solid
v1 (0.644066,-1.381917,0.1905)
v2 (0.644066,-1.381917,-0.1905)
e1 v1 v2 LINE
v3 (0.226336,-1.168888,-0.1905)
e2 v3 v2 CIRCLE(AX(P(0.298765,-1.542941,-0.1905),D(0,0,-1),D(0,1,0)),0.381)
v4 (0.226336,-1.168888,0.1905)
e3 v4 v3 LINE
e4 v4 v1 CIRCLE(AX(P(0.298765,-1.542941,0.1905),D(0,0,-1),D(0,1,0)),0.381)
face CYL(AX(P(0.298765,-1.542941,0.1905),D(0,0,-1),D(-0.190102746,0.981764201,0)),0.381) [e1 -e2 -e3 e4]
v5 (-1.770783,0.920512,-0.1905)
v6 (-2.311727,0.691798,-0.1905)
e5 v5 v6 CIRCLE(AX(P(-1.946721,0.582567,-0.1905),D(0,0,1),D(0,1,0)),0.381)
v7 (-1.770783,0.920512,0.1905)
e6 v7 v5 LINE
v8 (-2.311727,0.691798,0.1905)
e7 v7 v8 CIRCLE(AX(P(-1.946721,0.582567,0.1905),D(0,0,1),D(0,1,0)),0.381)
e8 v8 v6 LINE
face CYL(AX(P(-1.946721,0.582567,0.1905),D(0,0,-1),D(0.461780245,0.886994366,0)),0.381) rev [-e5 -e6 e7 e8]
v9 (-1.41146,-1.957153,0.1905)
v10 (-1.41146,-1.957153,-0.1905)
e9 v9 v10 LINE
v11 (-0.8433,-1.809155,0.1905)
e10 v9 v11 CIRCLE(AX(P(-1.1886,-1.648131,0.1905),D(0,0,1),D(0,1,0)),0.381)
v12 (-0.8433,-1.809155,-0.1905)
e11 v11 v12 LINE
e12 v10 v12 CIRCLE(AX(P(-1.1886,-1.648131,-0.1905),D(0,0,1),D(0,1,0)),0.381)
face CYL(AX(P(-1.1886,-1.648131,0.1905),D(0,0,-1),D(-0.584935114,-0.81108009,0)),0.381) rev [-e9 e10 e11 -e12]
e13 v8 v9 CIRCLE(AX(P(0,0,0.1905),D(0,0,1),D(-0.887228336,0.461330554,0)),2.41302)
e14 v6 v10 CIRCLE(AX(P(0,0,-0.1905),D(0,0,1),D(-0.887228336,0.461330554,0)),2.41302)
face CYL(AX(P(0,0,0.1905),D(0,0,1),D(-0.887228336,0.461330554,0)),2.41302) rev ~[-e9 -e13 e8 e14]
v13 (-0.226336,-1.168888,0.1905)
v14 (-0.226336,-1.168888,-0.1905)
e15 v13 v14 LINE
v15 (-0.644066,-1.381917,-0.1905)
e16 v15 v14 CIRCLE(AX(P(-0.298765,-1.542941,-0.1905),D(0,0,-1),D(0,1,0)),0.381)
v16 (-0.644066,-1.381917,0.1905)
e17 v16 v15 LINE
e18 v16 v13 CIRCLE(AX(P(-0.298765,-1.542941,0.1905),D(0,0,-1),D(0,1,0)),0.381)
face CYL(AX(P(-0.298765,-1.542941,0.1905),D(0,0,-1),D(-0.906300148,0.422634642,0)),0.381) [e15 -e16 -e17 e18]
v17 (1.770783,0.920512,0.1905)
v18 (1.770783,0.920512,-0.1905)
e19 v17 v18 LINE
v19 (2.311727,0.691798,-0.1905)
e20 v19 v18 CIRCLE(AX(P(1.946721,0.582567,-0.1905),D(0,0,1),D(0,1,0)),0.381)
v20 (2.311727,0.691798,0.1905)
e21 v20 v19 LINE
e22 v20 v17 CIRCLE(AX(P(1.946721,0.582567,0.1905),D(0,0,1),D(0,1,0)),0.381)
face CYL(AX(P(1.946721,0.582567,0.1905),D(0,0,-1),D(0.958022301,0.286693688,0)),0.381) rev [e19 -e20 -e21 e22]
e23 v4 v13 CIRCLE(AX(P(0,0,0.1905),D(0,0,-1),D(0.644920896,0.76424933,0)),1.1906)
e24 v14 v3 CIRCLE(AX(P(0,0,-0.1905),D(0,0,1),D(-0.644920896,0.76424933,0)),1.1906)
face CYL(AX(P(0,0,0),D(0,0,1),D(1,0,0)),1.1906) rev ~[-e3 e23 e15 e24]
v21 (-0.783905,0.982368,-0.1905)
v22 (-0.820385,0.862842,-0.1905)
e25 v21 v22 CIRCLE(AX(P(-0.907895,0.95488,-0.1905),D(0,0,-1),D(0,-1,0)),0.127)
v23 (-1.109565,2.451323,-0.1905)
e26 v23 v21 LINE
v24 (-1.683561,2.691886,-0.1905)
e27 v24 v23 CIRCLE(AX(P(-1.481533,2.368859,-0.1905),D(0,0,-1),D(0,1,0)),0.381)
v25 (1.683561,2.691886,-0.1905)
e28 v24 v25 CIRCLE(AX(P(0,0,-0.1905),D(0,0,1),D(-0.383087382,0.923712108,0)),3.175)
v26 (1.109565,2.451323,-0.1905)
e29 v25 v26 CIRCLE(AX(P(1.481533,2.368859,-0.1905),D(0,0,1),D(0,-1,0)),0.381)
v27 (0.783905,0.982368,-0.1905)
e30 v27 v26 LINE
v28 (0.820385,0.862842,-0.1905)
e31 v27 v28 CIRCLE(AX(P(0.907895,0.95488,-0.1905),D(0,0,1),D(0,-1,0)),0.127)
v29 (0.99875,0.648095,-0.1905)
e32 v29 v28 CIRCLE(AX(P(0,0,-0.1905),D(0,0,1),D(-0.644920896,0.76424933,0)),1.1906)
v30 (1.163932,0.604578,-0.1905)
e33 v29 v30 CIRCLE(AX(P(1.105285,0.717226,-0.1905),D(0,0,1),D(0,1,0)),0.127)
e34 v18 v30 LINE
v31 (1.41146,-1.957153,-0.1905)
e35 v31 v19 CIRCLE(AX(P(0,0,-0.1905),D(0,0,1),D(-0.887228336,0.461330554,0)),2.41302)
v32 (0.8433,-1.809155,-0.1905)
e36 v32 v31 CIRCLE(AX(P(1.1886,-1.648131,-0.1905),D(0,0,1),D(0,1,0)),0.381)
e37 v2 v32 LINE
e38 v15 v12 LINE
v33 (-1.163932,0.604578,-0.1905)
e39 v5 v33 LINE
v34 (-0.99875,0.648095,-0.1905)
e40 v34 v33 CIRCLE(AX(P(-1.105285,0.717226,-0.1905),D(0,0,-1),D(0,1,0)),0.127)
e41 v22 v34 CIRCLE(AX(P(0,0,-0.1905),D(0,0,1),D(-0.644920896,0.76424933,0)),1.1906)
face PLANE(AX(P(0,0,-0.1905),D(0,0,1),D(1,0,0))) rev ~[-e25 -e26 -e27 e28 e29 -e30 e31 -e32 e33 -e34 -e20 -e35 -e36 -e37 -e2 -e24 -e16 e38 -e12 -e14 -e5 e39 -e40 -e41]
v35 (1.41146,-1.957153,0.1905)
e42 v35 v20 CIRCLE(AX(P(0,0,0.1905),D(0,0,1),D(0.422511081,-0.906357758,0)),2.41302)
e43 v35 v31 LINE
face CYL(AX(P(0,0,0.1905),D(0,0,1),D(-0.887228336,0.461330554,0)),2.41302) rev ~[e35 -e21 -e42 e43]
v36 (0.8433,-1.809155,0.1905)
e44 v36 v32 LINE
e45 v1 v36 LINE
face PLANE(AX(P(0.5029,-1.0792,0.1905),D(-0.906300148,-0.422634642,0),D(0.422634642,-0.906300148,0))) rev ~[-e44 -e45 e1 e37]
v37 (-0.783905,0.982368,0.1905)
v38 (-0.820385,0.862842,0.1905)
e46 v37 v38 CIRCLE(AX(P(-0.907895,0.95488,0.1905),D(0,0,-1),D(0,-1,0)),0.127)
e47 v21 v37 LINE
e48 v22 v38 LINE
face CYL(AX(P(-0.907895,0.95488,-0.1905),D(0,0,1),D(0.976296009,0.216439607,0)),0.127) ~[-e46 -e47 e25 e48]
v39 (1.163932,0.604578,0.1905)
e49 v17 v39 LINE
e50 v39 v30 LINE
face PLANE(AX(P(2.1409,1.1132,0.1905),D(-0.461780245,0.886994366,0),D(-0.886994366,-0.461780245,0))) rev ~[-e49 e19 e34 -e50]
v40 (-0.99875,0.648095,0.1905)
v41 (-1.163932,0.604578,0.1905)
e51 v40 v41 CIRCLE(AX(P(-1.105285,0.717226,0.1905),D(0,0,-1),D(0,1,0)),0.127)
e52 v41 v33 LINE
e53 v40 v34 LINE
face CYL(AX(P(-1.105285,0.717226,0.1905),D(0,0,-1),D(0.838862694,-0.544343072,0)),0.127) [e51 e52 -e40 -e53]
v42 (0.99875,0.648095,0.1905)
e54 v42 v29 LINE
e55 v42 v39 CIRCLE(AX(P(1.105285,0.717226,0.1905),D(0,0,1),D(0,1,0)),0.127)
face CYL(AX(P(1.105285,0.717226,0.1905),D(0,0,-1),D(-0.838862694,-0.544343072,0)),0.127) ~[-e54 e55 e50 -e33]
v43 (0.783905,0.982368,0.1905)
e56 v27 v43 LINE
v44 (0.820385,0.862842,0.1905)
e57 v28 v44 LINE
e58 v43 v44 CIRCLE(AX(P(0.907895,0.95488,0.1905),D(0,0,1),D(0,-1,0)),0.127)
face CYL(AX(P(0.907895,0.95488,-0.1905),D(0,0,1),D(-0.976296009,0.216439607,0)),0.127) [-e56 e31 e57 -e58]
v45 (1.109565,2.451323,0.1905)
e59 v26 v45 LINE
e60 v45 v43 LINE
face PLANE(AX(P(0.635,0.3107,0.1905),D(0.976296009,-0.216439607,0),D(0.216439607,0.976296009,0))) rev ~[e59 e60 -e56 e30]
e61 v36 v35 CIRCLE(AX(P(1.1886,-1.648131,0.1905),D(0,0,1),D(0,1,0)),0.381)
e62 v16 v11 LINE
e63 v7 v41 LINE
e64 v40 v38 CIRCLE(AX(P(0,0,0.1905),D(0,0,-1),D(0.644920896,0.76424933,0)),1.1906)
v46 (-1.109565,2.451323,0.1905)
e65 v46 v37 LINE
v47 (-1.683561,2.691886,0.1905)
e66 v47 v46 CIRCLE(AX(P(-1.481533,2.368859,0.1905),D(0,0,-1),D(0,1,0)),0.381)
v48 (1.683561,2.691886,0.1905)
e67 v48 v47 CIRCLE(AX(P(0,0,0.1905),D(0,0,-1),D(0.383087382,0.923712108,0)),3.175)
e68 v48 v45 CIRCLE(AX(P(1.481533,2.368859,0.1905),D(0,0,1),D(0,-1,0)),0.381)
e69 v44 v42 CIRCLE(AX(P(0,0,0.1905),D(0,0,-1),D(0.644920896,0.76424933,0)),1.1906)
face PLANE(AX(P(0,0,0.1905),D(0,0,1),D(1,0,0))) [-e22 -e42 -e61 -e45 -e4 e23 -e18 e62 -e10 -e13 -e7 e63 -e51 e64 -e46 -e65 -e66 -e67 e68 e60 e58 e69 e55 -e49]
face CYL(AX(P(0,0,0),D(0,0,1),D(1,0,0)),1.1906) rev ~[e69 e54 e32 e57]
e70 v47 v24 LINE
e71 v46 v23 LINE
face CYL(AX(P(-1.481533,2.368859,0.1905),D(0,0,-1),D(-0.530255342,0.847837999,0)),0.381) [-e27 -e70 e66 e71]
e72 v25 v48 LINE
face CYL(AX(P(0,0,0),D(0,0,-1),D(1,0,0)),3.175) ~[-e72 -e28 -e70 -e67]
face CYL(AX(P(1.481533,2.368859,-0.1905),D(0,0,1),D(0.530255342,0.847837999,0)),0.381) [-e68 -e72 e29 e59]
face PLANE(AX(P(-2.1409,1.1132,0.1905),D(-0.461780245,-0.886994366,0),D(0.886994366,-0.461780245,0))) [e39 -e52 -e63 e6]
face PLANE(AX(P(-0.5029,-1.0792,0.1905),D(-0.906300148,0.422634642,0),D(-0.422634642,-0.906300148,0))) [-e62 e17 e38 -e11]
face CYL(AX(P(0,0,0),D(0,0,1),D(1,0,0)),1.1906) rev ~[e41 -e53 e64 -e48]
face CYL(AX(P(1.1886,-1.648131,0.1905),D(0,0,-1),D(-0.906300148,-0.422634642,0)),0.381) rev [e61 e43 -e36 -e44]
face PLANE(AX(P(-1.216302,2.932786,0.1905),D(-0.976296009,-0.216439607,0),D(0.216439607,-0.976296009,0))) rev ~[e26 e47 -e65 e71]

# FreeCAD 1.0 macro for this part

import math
import FreeCAD as App
import Part
import Sketcher
from FreeCAD import Vector
Q = App.Units.Quantity


def edges_at(feature, points):
    """Names of the edges that pass closest to the given points."""
    edges = feature.Shape.Edges
    near = lambda p: min(range(len(edges)), key=lambda i: edges[i].distToShape(Part.Vertex(*p))[0])
    return sorted({f"Edge{near(p) + 1}" for p in points})


def add_polygon(sketch, points):
    """Adds a closed chain of lines whose ends are joined by coincident constraints."""
    first, n = sketch.GeometryCount, len(points)
    for a, b in zip(points, points[1:] + points[:1]):
        sketch.addGeometry(Part.LineSegment(App.Vector(*a, 0), App.Vector(*b, 0)), False)
    for i in range(n):
        sketch.addConstraint(Sketcher.Constraint("Coincident", first + i, 2, first + (i + 1) % n, 1))

doc = App.newDocument("Part")
body = doc.addObject("PartDesign::Body", "Body")

# Sketch on XY plane
sketch1 = body.newObject("Sketcher::SketchObject", "Sketch")
sketch1.AttachmentSupport = (doc.getObject("XY_Plane"), [""])
sketch1.MapMode = "FlatFace"
sketch1.addGeometry(Part.Circle(Vector(0, 0, 0), Vector(0, 0, 1), 3.2), False)
sketch1.addGeometry(Part.Circle(Vector(0, 0, 0), Vector(0, 0, 1), 1.2), False)
sketch1.addConstraint(Sketcher.Constraint("Coincident", 0, 3, -1, 1))
sketch1.addConstraint(Sketcher.Constraint("Coincident", 1, 3, -1, 1))
sketch1.addConstraint(Sketcher.Constraint("Diameter", 0, Q("0.25 in")))
sketch1.addConstraint(Sketcher.Constraint("Diameter", 1, Q("0.093748 in")))
pad1 = body.newObject("PartDesign::Pad", "Pad")
pad1.Profile = sketch1
pad1.Length = Q("0.015 in")
pad1.Midplane = True

# Sketch on XY plane
sketch2 = body.newObject("Sketcher::SketchObject", "Sketch001")
sketch2.AttachmentSupport = (doc.getObject("XY_Plane"), [""])
sketch2.MapMode = "FlatFace"
sketch2.AttachmentOffset = App.Placement(Vector(0, 0, 0.0075 * 25.4), App.Rotation())
add_polygon(sketch2, [(0.6, 0.3), (1.3, 3.2), (-1.3, 3.2), (-0.6, 0.3)])  # lines 0-3
sketch2.addConstraint(Sketcher.Constraint("Horizontal", 1))
sketch2.addConstraint(Sketcher.Constraint("Horizontal", 3))
sketch2.addConstraint(Sketcher.Constraint("Equal", 0, 2))
sketch2.addConstraint(Sketcher.Constraint("DistanceX", 1, 2, 1, 1, Q("0.1 in")))
sketch2.addConstraint(Sketcher.Constraint("DistanceX", 3, 1, 3, 2, Q("0.05 in")))
sketch2.addConstraint(Sketcher.Constraint("DistanceX", -1, 1, 0, 2, Q("0.05 in")))
sketch2.addConstraint(Sketcher.Constraint("Angle", 0, Q("77.5 deg")))
sketch2.addConstraint(Sketcher.Constraint("DistanceY", -1, 1, 0, 2, Q("0.125 in")))
pocket1 = body.newObject("PartDesign::Pocket", "Pocket")
pocket1.Profile = sketch2
pocket1.Type = "ThroughAll"

# Sketch on XY plane
sketch3 = body.newObject("Sketcher::SketchObject", "Sketch002")
sketch3.AttachmentSupport = (doc.getObject("XY_Plane"), [""])
sketch3.MapMode = "FlatFace"
sketch3.AttachmentOffset = App.Placement(Vector(0, 0, 0.0075 * 25.4), App.Rotation())
sketch3.addGeometry(Part.ArcOfCircle(Part.Circle(Vector(0, 0, 0), Vector(0, 0, 1), 1.2), math.radians(153), math.radians(245)), False)
sketch3.addGeometry(Part.LineSegment(Vector(-1.1, 0.5, 0), Vector(-2.1, 1.1, 0)), False)
sketch3.addGeometry(Part.ArcOfCircle(Part.Circle(Vector(0, 0, 0), Vector(0, 0, 1), 2.4), math.radians(153), math.radians(245)), False)
sketch3.addGeometry(Part.LineSegment(Vector(-1, -2.2, 0), Vector(-0.5, -1.1, 0)), False)
sketch3.addGeometry(Part.ArcOfCircle(Part.Circle(Vector(0, 0, 0), Vector(0, 0, 1), 1.2), math.radians(-65), math.radians(27)), False)
sketch3.addGeometry(Part.LineSegment(Vector(0.5, -1.1, 0), Vector(1, -2.2, 0)), False)
sketch3.addGeometry(Part.ArcOfCircle(Part.Circle(Vector(0, 0, 0), Vector(0, 0, 1), 2.4), math.radians(-65), math.radians(27)), False)
sketch3.addGeometry(Part.LineSegment(Vector(2.1, 1.1, 0), Vector(1.1, 0.5, 0)), False)
sketch3.addConstraint(Sketcher.Constraint("Coincident", 0, 1, 1, 1))
sketch3.addConstraint(Sketcher.Constraint("Coincident", 1, 2, 2, 1))
sketch3.addConstraint(Sketcher.Constraint("Coincident", 2, 2, 3, 1))
sketch3.addConstraint(Sketcher.Constraint("Coincident", 3, 2, 0, 2))
sketch3.addConstraint(Sketcher.Constraint("Coincident", 4, 1, 5, 1))
sketch3.addConstraint(Sketcher.Constraint("Coincident", 5, 2, 6, 1))
sketch3.addConstraint(Sketcher.Constraint("Coincident", 6, 2, 7, 1))
sketch3.addConstraint(Sketcher.Constraint("Coincident", 7, 2, 4, 2))
sketch3.addConstraint(Sketcher.Constraint("Coincident", 0, 3, -1, 1))
sketch3.addConstraint(Sketcher.Constraint("Coincident", 2, 3, -1, 1))
sketch3.addConstraint(Sketcher.Constraint("Coincident", 4, 3, -1, 1))
sketch3.addConstraint(Sketcher.Constraint("Coincident", 6, 3, -1, 1))
sketch3.addConstraint(Sketcher.Constraint("Equal", 0, 4))
sketch3.addConstraint(Sketcher.Constraint("Equal", 2, 6))
sketch3.addConstraint(Sketcher.Constraint("Horizontal", 3, 2, 4, 1))
sketch3.addConstraint(Sketcher.Constraint("Horizontal", 2, 2, 5, 2))
sketch3.addConstraint(Sketcher.Constraint("Horizontal", 1, 2, 6, 2))
sketch3.addConstraint(Sketcher.Constraint("Horizontal", 0, 1, 7, 2))
sketch3.addConstraint(Sketcher.Constraint("Angle", 3, Q("64.999 deg")))
sketch3.addConstraint(Sketcher.Constraint("Radius", 0, Q("0.046874 in")))
sketch3.addConstraint(Sketcher.Constraint("Radius", 2, Q("0.095 in")))
sketch3.addConstraint(Sketcher.Constraint("DistanceX", 3, 2, 4, 1, Q("0.0396 in")))
sketch3.addConstraint(Sketcher.Constraint("DistanceX", 0, 1, -1, 1, Q("0.0416 in")))
sketch3.addConstraint(Sketcher.Constraint("DistanceX", 1, 2, 0, 1, Q("0.0427 in")))
pocket2 = body.newObject("PartDesign::Pocket", "Pocket001")
pocket2.Profile = sketch3
pocket2.Type = "ThroughAll"
doc.recompute()

fillet = body.newObject("PartDesign::Fillet", "Fillet")
fillet.Base = (pocket2, edges_at(pocket2, [
    (-1.216, 2.933, 0),
    (1.216, 2.933, 0),
    (-2.141, 1.113, 0),
    (2.141, 1.113, 0),
    (-1.02, -2.187, 0),
    (1.02, -2.187, 0),
    (0.503, -1.079, 0),
    (-0.503, -1.079, 0),
]))
fillet.Radius = Q("0.015 in")
doc.recompute()

fillet2 = body.newObject("PartDesign::Fillet", "Fillet001")
fillet2.Base = (fillet, edges_at(fillet, [
    (-0.768, 0.91, 0),
    (-1.057, 0.549, 0),
    (0.768, 0.91, 0),
    (1.057, 0.549, 0),
]))
fillet2.Radius = Q("0.005 in")

doc.recompute()
